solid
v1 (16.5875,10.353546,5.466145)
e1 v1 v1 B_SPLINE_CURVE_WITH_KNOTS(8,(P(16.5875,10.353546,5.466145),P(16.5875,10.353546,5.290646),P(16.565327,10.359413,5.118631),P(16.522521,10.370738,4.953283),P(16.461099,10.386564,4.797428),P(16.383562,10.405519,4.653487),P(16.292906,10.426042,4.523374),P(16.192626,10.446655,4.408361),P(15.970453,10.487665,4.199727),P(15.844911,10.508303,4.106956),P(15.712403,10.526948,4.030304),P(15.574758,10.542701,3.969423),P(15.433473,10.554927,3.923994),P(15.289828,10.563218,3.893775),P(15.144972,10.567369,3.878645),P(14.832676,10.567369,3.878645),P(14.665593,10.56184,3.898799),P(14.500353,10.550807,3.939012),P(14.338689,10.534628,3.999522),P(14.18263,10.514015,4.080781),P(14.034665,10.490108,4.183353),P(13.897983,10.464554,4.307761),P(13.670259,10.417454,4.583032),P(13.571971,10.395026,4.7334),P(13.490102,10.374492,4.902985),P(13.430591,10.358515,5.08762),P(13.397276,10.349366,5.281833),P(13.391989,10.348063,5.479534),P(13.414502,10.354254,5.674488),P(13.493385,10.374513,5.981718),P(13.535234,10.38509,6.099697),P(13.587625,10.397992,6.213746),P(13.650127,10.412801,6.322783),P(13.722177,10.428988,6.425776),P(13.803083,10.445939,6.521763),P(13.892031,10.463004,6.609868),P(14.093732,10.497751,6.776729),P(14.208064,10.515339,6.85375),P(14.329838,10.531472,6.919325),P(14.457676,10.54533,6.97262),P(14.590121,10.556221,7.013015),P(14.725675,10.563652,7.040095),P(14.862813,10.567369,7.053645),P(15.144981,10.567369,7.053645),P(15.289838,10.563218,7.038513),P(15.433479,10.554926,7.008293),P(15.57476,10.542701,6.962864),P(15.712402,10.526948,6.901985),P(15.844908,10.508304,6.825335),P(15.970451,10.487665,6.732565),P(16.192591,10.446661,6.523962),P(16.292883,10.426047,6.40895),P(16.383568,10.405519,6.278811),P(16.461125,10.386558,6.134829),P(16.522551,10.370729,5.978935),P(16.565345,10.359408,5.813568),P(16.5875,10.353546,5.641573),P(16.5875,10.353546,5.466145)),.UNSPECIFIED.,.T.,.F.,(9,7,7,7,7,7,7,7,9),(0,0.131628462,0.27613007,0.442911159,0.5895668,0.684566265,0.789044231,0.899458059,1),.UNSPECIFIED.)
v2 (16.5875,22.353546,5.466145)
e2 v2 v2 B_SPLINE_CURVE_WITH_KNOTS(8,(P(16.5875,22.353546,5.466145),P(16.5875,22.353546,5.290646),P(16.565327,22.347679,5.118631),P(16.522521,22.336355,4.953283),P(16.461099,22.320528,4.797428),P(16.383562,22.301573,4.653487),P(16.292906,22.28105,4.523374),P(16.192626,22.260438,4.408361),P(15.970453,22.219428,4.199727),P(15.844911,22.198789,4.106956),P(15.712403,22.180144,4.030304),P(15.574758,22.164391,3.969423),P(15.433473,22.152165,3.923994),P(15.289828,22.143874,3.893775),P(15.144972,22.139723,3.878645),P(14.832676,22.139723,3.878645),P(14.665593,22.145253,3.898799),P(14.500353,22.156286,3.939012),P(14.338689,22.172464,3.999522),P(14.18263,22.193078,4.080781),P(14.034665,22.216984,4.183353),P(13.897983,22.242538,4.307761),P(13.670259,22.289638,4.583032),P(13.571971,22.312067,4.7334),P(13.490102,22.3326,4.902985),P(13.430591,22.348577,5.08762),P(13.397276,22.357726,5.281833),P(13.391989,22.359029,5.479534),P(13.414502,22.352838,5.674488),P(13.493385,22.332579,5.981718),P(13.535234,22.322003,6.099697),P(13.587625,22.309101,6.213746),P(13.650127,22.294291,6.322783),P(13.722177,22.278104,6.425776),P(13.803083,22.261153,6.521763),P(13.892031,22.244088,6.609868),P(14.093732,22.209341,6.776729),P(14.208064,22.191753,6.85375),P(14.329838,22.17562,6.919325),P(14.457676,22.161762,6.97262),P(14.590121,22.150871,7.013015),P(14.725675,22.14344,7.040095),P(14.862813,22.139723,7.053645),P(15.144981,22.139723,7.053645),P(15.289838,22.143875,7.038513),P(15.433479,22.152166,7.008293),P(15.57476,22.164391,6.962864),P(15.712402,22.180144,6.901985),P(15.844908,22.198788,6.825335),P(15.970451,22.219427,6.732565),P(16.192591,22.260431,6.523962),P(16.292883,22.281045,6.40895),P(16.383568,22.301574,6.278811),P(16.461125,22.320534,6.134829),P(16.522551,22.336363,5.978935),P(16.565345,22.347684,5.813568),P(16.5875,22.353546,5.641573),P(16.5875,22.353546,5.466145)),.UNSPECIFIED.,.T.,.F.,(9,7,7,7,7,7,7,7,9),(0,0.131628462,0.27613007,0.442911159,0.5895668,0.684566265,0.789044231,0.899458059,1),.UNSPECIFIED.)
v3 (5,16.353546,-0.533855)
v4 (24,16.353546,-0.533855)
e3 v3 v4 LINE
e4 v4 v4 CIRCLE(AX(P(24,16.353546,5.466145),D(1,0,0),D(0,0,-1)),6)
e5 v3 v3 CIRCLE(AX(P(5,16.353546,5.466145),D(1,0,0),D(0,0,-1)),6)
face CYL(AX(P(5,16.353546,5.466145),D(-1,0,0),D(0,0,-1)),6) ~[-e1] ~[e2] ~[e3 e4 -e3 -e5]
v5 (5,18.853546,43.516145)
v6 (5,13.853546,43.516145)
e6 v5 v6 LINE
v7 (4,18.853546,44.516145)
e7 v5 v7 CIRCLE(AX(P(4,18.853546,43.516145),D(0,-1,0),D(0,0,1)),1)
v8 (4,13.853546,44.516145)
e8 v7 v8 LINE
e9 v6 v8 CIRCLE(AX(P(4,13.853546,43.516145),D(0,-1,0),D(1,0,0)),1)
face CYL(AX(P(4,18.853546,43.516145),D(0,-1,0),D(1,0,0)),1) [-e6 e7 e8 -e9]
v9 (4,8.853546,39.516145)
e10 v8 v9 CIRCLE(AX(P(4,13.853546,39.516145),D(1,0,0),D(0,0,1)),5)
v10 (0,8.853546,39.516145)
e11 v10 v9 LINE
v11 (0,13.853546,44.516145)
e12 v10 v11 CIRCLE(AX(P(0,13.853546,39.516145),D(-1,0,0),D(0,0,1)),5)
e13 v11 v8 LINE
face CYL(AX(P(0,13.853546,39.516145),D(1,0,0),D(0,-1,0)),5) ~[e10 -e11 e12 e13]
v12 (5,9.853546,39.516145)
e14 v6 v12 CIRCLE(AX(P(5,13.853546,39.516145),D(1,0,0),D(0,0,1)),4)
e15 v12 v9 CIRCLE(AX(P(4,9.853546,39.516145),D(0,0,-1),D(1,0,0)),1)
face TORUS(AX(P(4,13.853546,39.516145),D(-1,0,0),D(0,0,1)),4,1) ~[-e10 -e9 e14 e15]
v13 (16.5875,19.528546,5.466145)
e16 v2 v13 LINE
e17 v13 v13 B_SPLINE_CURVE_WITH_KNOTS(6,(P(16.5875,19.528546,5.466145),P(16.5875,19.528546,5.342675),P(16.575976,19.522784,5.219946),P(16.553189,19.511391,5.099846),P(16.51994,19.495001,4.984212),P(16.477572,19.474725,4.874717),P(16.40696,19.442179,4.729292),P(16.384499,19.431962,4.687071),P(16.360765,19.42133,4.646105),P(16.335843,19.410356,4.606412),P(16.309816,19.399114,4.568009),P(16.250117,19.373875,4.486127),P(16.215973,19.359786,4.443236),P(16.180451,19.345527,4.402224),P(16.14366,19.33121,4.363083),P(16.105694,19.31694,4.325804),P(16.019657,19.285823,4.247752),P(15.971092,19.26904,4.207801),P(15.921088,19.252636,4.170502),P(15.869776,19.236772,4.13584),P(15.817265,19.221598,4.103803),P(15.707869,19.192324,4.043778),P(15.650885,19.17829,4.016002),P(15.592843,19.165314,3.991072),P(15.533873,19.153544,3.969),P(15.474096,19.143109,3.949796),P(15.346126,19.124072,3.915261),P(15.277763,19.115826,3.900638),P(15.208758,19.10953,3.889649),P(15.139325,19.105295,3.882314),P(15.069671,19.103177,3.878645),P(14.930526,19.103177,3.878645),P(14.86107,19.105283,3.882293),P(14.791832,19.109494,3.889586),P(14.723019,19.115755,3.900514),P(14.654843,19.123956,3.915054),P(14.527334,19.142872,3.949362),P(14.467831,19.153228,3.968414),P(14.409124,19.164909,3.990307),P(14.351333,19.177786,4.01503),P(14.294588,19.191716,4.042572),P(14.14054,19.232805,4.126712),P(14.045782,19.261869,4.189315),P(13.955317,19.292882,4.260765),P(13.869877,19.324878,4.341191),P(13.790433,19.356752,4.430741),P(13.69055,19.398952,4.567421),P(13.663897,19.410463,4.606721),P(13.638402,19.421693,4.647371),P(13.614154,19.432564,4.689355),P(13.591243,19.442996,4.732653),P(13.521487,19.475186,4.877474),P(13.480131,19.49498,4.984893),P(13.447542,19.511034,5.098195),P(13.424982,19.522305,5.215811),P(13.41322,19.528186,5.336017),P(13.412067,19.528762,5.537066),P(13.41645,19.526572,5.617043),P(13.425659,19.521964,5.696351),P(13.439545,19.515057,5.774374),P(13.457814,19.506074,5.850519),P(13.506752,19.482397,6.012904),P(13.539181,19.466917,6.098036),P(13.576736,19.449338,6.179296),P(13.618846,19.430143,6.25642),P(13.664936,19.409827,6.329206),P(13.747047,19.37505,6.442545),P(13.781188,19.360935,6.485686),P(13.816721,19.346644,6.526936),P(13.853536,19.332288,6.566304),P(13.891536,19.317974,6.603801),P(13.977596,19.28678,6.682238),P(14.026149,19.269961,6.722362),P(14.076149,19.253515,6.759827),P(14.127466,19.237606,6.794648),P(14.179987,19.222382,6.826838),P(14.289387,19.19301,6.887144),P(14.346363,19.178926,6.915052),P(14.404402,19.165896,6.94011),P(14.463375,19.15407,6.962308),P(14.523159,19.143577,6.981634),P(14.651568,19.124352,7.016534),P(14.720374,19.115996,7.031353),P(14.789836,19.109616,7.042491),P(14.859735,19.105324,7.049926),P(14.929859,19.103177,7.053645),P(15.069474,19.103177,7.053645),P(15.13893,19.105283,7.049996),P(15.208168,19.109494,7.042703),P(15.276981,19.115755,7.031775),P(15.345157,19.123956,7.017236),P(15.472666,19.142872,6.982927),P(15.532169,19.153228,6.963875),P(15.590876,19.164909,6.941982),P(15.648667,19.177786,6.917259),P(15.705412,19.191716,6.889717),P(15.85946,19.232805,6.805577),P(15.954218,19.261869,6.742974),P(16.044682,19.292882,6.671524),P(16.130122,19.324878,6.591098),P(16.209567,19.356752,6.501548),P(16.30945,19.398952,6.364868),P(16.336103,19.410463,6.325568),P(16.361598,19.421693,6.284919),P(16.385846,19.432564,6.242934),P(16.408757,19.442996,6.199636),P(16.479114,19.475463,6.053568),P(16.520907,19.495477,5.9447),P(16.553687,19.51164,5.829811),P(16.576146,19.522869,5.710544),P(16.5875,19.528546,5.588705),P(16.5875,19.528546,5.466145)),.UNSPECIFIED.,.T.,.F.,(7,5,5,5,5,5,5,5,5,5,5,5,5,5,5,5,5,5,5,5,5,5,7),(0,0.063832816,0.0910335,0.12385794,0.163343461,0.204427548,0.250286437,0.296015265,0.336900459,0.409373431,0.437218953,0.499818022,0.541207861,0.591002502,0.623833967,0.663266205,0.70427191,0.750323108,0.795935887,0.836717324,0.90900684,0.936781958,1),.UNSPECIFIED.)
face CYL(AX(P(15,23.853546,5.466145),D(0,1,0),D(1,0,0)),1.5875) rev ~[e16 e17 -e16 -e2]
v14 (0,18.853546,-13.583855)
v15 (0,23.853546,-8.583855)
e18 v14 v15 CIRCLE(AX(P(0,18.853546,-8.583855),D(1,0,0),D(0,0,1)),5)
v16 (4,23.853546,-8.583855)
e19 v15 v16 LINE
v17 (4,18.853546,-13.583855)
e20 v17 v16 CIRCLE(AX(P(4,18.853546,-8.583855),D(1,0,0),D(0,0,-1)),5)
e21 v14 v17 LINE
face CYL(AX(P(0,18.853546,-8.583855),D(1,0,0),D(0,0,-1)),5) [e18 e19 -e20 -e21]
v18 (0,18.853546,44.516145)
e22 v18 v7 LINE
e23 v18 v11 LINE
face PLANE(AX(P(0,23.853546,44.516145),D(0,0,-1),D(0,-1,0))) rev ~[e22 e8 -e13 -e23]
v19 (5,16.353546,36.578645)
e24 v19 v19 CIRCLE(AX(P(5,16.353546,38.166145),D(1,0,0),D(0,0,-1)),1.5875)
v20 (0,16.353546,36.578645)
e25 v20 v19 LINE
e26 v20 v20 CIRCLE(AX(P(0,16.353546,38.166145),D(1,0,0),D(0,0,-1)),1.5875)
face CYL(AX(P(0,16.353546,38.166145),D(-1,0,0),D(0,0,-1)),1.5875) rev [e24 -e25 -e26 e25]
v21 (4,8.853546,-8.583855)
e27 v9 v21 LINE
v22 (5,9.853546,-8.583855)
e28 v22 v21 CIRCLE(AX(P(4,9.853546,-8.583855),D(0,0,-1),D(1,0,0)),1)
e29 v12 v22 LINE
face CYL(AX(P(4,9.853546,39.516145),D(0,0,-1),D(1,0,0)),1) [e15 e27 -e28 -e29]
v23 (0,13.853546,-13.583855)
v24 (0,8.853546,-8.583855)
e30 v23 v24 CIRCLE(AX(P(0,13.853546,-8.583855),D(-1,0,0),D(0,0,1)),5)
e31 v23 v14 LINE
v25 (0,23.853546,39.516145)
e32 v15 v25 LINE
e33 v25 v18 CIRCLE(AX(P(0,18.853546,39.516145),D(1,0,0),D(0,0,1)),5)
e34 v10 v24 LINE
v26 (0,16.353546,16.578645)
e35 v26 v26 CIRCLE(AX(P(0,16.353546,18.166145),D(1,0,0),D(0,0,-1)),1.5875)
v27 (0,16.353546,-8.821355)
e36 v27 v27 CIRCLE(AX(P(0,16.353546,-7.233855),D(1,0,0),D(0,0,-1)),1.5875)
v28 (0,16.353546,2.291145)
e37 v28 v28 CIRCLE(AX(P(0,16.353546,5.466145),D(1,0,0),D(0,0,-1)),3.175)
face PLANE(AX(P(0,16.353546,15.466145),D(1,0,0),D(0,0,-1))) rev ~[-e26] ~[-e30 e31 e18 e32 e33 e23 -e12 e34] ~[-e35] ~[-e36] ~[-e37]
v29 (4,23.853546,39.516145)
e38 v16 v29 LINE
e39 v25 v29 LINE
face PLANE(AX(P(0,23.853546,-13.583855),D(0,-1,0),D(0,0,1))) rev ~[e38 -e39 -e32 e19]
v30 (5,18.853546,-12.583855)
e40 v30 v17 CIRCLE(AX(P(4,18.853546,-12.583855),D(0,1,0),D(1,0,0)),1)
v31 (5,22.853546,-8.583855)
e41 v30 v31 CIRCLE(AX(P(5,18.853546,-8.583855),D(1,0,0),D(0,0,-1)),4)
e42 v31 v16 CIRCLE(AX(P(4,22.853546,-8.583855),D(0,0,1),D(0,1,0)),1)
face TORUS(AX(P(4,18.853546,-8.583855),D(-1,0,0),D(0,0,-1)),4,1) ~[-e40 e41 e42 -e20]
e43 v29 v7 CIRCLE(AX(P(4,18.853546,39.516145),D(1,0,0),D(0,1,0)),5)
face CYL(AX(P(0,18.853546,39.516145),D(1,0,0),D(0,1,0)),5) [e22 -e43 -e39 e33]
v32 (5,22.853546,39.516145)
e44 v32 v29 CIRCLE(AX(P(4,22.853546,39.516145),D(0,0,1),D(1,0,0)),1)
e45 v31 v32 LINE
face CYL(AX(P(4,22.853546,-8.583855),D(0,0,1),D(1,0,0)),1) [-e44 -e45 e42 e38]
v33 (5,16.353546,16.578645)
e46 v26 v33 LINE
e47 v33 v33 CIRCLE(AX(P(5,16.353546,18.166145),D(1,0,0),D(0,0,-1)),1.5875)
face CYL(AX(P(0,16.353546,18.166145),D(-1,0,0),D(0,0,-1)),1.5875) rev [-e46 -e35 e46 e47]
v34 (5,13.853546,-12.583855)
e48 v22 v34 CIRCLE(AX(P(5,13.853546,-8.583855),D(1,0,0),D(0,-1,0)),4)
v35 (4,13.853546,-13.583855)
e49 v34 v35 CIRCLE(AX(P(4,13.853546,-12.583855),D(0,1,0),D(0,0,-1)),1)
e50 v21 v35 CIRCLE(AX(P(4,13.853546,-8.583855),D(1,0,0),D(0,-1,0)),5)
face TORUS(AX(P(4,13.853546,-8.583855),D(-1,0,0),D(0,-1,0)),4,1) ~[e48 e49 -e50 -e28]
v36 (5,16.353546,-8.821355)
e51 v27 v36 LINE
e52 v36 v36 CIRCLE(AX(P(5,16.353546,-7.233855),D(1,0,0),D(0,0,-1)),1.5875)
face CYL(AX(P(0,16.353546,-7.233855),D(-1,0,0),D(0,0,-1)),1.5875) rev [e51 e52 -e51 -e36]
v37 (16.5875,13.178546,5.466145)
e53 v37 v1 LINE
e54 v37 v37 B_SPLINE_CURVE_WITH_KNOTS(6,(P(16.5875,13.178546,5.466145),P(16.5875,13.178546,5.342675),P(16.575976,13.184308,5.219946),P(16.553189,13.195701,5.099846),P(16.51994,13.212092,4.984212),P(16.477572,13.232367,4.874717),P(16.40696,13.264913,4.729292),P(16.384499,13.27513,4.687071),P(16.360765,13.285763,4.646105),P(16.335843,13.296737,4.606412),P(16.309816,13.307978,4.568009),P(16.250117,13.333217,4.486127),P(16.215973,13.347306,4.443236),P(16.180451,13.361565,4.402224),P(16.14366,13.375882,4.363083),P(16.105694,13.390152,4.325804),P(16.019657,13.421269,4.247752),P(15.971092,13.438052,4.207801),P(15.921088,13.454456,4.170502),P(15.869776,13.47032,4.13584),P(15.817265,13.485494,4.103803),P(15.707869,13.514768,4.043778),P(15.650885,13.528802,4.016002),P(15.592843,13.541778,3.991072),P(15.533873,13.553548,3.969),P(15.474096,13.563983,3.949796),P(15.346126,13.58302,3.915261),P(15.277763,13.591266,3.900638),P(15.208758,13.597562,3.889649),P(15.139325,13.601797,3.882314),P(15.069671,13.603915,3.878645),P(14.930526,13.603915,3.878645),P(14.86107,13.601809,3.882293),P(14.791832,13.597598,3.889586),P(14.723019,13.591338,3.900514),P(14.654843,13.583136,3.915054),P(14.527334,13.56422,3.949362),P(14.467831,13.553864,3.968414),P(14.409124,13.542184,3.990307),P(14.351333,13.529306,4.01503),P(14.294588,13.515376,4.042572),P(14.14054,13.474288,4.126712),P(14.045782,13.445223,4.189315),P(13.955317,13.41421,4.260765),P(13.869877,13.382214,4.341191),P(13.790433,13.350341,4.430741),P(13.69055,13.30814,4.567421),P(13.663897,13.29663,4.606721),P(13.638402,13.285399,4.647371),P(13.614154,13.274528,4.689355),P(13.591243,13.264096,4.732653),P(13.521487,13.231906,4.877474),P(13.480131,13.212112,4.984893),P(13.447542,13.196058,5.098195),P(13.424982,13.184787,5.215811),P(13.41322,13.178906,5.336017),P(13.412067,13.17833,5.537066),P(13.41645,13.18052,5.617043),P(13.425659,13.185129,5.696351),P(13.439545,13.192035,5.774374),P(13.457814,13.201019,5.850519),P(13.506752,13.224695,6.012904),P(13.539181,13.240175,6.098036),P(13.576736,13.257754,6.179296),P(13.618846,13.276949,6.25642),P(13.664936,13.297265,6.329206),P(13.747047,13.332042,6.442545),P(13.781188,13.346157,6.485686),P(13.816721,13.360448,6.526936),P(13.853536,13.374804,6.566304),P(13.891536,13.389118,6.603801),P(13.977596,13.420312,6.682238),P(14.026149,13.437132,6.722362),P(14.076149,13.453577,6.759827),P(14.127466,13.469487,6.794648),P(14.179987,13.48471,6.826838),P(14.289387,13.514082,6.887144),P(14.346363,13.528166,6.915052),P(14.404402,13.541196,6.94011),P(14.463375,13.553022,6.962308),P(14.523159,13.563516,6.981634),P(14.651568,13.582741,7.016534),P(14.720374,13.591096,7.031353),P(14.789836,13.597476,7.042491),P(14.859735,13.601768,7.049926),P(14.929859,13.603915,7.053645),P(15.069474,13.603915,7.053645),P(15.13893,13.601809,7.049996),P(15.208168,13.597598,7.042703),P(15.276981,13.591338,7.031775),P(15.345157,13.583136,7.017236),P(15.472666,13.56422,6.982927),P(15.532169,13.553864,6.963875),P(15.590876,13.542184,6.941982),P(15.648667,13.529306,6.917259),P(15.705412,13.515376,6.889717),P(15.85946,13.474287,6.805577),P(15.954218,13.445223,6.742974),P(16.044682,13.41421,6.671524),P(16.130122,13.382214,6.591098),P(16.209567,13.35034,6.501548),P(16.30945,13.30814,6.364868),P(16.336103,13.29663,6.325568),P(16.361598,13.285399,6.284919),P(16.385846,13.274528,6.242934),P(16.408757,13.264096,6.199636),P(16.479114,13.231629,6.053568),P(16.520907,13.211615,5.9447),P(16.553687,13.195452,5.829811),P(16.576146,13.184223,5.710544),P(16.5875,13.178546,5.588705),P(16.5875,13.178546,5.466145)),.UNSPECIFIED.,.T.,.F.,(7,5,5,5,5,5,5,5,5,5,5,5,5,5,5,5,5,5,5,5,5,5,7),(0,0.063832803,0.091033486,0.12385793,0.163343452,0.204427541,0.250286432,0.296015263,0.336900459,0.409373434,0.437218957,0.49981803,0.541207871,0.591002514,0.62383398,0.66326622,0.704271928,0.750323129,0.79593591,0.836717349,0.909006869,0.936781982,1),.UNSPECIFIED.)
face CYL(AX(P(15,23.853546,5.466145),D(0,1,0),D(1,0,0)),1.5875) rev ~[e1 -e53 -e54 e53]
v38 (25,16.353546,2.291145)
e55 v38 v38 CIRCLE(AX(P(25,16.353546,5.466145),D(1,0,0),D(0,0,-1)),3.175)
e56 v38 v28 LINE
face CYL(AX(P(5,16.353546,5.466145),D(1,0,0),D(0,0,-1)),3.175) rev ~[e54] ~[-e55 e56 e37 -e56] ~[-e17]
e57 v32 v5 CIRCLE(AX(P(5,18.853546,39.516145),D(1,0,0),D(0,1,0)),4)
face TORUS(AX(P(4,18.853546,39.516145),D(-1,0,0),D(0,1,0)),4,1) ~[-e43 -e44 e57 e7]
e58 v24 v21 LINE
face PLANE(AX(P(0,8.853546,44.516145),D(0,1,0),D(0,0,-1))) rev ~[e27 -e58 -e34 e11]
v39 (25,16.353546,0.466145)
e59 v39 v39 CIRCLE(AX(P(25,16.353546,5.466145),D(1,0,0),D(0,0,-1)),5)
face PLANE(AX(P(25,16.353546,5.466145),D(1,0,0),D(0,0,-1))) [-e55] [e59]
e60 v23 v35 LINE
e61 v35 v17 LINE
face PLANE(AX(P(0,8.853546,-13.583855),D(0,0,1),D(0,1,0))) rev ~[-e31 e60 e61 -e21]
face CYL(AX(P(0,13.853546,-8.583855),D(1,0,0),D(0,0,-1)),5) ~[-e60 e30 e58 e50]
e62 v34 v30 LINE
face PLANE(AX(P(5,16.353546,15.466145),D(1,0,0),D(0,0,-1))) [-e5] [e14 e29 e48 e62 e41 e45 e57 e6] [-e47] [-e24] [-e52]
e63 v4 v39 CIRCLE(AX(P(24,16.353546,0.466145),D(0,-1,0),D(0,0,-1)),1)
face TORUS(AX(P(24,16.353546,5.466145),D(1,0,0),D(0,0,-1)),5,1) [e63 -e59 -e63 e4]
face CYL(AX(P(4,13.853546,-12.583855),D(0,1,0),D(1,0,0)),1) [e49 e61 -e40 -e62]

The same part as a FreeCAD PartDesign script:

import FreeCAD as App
import Part
import Sketcher

V = App.Vector


def edges_at(feature, points):
    """Names of the edges that pass closest to the given points."""
    edges = feature.Shape.Edges
    near = lambda p: min(range(len(edges)), key=lambda i: edges[i].distToShape(Part.Vertex(*p))[0])
    return sorted({f"Edge{near(p) + 1}" for p in points})

doc = App.newDocument("Part")
body = doc.addObject("PartDesign::Body", "Body")

# Sketch on YZ plane
sketch1 = body.newObject("Sketcher::SketchObject", "Sketch")
sketch1.AttachmentSupport = (doc.getObject("YZ_Plane"), [""])
sketch1.MapMode = "FlatFace"
sketch1.addGeometry([
    Part.LineSegment(V(8.9, -13.6, 0), V(23.9, -13.6, 0)),  # 0
    Part.LineSegment(V(23.9, -13.6, 0), V(23.9, 44.5, 0)),  # 1
    Part.LineSegment(V(23.9, 44.5, 0), V(8.9, 44.5, 0)),  # 2
    Part.LineSegment(V(8.9, 44.5, 0), V(8.9, -13.6, 0)),  # 3
    Part.Circle(V(16.4, 38.2, 0), V(0, 0, 1), 1.6),  # 4
    Part.Circle(V(16.4, 18.2, 0), V(0, 0, 1), 1.6),  # 5
    Part.Circle(V(16.4, -7.2, 0), V(0, 0, 1), 1.6),  # 6
], False)
sketch1.addConstraint([
    Sketcher.Constraint("Coincident", 0, 2, 1, 1),
    Sketcher.Constraint("Coincident", 1, 2, 2, 1),
    Sketcher.Constraint("Coincident", 2, 2, 3, 1),
    Sketcher.Constraint("Coincident", 3, 2, 0, 1),
    Sketcher.Constraint("Horizontal", 0),
    Sketcher.Constraint("Vertical", 1),
    Sketcher.Constraint("Horizontal", 2),
    Sketcher.Constraint("Vertical", 3),
    Sketcher.Constraint("Equal", 4, 5),
    Sketcher.Constraint("Equal", 5, 6),
    Sketcher.Constraint("Vertical", 4, 3, 5, 3),
    Sketcher.Constraint("Vertical", 5, 3, 6, 3),
    Sketcher.Constraint("DistanceX", 0, 1, 0, 2, 15.0),
    Sketcher.Constraint("Diameter", 4, 3.175),
    Sketcher.Constraint("DistanceY", 1, 1, 1, 2, 58.1),
    Sketcher.Constraint("DistanceY", 5, 3, 4, 3, 20.0),
    Sketcher.Constraint("DistanceY", 6, 3, 5, 3, 25.4),
    Sketcher.Constraint("DistanceX", 6, 3, 0, 2, 7.5),
    Sketcher.Constraint("DistanceY", 0, 2, 6, 3, 6.35),
    Sketcher.Constraint("DistanceX", -1, 1, 4, 3, 16.353546),
    Sketcher.Constraint("DistanceY", -1, 1, 4, 3, 38.166145),
])
pad1 = body.newObject("PartDesign::Pad", "Pad")
pad1.Profile = sketch1
pad1.Length = 5

# Sketch on YZ plane
sketch2 = body.newObject("Sketcher::SketchObject", "Sketch001")
sketch2.AttachmentSupport = (doc.getObject("YZ_Plane"), [""])
sketch2.MapMode = "FlatFace"
sketch2.AttachmentOffset = App.Placement(V(0, 0, 5), App.Rotation())
sketch2.addGeometry([
    Part.Circle(V(16.4, 5.5, 0), V(0, 0, 1), 6),
    Part.Circle(V(16.4, 5.5, 0), V(0, 0, 1), 3.2),
], False)
sketch2.addConstraint([
    Sketcher.Constraint("Coincident", 1, 3, 0, 3),
    Sketcher.Constraint("Diameter", 0, 12.0),
    Sketcher.Constraint("Diameter", 1, 6.35),
    Sketcher.Constraint("DistanceX", -1, 1, 0, 3, 16.353546),
    Sketcher.Constraint("DistanceY", -1, 1, 0, 3, 5.466145),
])
pad2 = body.newObject("PartDesign::Pad", "Pad001")
pad2.Profile = sketch2
pad2.Length = 20
doc.recompute()

fillet = body.newObject("PartDesign::Fillet", "Fillet")
fillet.Base = (pad2, edges_at(pad2, [
    (2.5, 8.854, 44.516),
    (2.5, 23.854, 44.516),
    (2.5, 23.854, -13.584),
    (2.5, 8.854, -13.584),
]))
fillet.Radius = 5
doc.recompute()

fillet2 = body.newObject("PartDesign::Fillet", "Fillet001")
fillet2.Base = (fillet, edges_at(fillet, [(25, 16.354, 11.466)]))
fillet2.Radius = 1

# Sketch on XZ plane
sketch3 = body.newObject("Sketcher::SketchObject", "Sketch002")
sketch3.AttachmentSupport = (doc.getObject("XZ_Plane"), [""])
sketch3.MapMode = "FlatFace"
sketch3.AttachmentOffset = App.Placement(V(0, 0, -23.853546), App.Rotation())
sketch3.addGeometry(Part.Circle(V(15, 5.5, 0), V(0, 0, 1), 1.6), False)
sketch3.addConstraint([
    Sketcher.Constraint("Diameter", 0, 3.175),
    Sketcher.Constraint("DistanceX", -1, 1, 0, 3, 15.0),
    Sketcher.Constraint("DistanceY", -1, 1, 0, 3, 5.466145),
])
pocket1 = body.newObject("PartDesign::Pocket", "Pocket")
pocket1.Profile = sketch3
pocket1.Type = "ThroughAll"
pocket1.Reversed = True
doc.recompute()

fillet3 = body.newObject("PartDesign::Fillet", "Fillet002")
fillet3.Base = (pocket1, edges_at(pocket1, [
    (5, 8.854, 15.466),
    (5, 16.354, 44.516),
    (5, 16.354, -13.584),
    (5, 23.854, 15.466),
    (5, 22.389, -12.119),
    (5, 10.318, -12.119),
    (5, 22.389, 43.052),
    (5, 10.318, 43.052),
]))
fillet3.Radius = 1

# Sketch on YZ plane
sketch4 = body.newObject("Sketcher::SketchObject", "Sketch003")
sketch4.AttachmentSupport = (doc.getObject("YZ_Plane"), [""])
sketch4.MapMode = "FlatFace"
sketch4.AttachmentOffset = App.Placement(V(0, 0, 5), App.Rotation())
sketch4.addGeometry(Part.Circle(V(16.4, 5.5, 0), V(0, 0, 1), 3.2), False)
sketch4.addConstraint([
    Sketcher.Constraint("Diameter", 0, 6.35),
    Sketcher.Constraint("DistanceX", -1, 1, 0, 3, 16.353546),
    Sketcher.Constraint("DistanceY", -1, 1, 0, 3, 5.466145),
])
pocket2 = body.newObject("PartDesign::Pocket", "Pocket001")
pocket2.Profile = sketch4
pocket2.Type = "ThroughAll"

doc.recompute()
